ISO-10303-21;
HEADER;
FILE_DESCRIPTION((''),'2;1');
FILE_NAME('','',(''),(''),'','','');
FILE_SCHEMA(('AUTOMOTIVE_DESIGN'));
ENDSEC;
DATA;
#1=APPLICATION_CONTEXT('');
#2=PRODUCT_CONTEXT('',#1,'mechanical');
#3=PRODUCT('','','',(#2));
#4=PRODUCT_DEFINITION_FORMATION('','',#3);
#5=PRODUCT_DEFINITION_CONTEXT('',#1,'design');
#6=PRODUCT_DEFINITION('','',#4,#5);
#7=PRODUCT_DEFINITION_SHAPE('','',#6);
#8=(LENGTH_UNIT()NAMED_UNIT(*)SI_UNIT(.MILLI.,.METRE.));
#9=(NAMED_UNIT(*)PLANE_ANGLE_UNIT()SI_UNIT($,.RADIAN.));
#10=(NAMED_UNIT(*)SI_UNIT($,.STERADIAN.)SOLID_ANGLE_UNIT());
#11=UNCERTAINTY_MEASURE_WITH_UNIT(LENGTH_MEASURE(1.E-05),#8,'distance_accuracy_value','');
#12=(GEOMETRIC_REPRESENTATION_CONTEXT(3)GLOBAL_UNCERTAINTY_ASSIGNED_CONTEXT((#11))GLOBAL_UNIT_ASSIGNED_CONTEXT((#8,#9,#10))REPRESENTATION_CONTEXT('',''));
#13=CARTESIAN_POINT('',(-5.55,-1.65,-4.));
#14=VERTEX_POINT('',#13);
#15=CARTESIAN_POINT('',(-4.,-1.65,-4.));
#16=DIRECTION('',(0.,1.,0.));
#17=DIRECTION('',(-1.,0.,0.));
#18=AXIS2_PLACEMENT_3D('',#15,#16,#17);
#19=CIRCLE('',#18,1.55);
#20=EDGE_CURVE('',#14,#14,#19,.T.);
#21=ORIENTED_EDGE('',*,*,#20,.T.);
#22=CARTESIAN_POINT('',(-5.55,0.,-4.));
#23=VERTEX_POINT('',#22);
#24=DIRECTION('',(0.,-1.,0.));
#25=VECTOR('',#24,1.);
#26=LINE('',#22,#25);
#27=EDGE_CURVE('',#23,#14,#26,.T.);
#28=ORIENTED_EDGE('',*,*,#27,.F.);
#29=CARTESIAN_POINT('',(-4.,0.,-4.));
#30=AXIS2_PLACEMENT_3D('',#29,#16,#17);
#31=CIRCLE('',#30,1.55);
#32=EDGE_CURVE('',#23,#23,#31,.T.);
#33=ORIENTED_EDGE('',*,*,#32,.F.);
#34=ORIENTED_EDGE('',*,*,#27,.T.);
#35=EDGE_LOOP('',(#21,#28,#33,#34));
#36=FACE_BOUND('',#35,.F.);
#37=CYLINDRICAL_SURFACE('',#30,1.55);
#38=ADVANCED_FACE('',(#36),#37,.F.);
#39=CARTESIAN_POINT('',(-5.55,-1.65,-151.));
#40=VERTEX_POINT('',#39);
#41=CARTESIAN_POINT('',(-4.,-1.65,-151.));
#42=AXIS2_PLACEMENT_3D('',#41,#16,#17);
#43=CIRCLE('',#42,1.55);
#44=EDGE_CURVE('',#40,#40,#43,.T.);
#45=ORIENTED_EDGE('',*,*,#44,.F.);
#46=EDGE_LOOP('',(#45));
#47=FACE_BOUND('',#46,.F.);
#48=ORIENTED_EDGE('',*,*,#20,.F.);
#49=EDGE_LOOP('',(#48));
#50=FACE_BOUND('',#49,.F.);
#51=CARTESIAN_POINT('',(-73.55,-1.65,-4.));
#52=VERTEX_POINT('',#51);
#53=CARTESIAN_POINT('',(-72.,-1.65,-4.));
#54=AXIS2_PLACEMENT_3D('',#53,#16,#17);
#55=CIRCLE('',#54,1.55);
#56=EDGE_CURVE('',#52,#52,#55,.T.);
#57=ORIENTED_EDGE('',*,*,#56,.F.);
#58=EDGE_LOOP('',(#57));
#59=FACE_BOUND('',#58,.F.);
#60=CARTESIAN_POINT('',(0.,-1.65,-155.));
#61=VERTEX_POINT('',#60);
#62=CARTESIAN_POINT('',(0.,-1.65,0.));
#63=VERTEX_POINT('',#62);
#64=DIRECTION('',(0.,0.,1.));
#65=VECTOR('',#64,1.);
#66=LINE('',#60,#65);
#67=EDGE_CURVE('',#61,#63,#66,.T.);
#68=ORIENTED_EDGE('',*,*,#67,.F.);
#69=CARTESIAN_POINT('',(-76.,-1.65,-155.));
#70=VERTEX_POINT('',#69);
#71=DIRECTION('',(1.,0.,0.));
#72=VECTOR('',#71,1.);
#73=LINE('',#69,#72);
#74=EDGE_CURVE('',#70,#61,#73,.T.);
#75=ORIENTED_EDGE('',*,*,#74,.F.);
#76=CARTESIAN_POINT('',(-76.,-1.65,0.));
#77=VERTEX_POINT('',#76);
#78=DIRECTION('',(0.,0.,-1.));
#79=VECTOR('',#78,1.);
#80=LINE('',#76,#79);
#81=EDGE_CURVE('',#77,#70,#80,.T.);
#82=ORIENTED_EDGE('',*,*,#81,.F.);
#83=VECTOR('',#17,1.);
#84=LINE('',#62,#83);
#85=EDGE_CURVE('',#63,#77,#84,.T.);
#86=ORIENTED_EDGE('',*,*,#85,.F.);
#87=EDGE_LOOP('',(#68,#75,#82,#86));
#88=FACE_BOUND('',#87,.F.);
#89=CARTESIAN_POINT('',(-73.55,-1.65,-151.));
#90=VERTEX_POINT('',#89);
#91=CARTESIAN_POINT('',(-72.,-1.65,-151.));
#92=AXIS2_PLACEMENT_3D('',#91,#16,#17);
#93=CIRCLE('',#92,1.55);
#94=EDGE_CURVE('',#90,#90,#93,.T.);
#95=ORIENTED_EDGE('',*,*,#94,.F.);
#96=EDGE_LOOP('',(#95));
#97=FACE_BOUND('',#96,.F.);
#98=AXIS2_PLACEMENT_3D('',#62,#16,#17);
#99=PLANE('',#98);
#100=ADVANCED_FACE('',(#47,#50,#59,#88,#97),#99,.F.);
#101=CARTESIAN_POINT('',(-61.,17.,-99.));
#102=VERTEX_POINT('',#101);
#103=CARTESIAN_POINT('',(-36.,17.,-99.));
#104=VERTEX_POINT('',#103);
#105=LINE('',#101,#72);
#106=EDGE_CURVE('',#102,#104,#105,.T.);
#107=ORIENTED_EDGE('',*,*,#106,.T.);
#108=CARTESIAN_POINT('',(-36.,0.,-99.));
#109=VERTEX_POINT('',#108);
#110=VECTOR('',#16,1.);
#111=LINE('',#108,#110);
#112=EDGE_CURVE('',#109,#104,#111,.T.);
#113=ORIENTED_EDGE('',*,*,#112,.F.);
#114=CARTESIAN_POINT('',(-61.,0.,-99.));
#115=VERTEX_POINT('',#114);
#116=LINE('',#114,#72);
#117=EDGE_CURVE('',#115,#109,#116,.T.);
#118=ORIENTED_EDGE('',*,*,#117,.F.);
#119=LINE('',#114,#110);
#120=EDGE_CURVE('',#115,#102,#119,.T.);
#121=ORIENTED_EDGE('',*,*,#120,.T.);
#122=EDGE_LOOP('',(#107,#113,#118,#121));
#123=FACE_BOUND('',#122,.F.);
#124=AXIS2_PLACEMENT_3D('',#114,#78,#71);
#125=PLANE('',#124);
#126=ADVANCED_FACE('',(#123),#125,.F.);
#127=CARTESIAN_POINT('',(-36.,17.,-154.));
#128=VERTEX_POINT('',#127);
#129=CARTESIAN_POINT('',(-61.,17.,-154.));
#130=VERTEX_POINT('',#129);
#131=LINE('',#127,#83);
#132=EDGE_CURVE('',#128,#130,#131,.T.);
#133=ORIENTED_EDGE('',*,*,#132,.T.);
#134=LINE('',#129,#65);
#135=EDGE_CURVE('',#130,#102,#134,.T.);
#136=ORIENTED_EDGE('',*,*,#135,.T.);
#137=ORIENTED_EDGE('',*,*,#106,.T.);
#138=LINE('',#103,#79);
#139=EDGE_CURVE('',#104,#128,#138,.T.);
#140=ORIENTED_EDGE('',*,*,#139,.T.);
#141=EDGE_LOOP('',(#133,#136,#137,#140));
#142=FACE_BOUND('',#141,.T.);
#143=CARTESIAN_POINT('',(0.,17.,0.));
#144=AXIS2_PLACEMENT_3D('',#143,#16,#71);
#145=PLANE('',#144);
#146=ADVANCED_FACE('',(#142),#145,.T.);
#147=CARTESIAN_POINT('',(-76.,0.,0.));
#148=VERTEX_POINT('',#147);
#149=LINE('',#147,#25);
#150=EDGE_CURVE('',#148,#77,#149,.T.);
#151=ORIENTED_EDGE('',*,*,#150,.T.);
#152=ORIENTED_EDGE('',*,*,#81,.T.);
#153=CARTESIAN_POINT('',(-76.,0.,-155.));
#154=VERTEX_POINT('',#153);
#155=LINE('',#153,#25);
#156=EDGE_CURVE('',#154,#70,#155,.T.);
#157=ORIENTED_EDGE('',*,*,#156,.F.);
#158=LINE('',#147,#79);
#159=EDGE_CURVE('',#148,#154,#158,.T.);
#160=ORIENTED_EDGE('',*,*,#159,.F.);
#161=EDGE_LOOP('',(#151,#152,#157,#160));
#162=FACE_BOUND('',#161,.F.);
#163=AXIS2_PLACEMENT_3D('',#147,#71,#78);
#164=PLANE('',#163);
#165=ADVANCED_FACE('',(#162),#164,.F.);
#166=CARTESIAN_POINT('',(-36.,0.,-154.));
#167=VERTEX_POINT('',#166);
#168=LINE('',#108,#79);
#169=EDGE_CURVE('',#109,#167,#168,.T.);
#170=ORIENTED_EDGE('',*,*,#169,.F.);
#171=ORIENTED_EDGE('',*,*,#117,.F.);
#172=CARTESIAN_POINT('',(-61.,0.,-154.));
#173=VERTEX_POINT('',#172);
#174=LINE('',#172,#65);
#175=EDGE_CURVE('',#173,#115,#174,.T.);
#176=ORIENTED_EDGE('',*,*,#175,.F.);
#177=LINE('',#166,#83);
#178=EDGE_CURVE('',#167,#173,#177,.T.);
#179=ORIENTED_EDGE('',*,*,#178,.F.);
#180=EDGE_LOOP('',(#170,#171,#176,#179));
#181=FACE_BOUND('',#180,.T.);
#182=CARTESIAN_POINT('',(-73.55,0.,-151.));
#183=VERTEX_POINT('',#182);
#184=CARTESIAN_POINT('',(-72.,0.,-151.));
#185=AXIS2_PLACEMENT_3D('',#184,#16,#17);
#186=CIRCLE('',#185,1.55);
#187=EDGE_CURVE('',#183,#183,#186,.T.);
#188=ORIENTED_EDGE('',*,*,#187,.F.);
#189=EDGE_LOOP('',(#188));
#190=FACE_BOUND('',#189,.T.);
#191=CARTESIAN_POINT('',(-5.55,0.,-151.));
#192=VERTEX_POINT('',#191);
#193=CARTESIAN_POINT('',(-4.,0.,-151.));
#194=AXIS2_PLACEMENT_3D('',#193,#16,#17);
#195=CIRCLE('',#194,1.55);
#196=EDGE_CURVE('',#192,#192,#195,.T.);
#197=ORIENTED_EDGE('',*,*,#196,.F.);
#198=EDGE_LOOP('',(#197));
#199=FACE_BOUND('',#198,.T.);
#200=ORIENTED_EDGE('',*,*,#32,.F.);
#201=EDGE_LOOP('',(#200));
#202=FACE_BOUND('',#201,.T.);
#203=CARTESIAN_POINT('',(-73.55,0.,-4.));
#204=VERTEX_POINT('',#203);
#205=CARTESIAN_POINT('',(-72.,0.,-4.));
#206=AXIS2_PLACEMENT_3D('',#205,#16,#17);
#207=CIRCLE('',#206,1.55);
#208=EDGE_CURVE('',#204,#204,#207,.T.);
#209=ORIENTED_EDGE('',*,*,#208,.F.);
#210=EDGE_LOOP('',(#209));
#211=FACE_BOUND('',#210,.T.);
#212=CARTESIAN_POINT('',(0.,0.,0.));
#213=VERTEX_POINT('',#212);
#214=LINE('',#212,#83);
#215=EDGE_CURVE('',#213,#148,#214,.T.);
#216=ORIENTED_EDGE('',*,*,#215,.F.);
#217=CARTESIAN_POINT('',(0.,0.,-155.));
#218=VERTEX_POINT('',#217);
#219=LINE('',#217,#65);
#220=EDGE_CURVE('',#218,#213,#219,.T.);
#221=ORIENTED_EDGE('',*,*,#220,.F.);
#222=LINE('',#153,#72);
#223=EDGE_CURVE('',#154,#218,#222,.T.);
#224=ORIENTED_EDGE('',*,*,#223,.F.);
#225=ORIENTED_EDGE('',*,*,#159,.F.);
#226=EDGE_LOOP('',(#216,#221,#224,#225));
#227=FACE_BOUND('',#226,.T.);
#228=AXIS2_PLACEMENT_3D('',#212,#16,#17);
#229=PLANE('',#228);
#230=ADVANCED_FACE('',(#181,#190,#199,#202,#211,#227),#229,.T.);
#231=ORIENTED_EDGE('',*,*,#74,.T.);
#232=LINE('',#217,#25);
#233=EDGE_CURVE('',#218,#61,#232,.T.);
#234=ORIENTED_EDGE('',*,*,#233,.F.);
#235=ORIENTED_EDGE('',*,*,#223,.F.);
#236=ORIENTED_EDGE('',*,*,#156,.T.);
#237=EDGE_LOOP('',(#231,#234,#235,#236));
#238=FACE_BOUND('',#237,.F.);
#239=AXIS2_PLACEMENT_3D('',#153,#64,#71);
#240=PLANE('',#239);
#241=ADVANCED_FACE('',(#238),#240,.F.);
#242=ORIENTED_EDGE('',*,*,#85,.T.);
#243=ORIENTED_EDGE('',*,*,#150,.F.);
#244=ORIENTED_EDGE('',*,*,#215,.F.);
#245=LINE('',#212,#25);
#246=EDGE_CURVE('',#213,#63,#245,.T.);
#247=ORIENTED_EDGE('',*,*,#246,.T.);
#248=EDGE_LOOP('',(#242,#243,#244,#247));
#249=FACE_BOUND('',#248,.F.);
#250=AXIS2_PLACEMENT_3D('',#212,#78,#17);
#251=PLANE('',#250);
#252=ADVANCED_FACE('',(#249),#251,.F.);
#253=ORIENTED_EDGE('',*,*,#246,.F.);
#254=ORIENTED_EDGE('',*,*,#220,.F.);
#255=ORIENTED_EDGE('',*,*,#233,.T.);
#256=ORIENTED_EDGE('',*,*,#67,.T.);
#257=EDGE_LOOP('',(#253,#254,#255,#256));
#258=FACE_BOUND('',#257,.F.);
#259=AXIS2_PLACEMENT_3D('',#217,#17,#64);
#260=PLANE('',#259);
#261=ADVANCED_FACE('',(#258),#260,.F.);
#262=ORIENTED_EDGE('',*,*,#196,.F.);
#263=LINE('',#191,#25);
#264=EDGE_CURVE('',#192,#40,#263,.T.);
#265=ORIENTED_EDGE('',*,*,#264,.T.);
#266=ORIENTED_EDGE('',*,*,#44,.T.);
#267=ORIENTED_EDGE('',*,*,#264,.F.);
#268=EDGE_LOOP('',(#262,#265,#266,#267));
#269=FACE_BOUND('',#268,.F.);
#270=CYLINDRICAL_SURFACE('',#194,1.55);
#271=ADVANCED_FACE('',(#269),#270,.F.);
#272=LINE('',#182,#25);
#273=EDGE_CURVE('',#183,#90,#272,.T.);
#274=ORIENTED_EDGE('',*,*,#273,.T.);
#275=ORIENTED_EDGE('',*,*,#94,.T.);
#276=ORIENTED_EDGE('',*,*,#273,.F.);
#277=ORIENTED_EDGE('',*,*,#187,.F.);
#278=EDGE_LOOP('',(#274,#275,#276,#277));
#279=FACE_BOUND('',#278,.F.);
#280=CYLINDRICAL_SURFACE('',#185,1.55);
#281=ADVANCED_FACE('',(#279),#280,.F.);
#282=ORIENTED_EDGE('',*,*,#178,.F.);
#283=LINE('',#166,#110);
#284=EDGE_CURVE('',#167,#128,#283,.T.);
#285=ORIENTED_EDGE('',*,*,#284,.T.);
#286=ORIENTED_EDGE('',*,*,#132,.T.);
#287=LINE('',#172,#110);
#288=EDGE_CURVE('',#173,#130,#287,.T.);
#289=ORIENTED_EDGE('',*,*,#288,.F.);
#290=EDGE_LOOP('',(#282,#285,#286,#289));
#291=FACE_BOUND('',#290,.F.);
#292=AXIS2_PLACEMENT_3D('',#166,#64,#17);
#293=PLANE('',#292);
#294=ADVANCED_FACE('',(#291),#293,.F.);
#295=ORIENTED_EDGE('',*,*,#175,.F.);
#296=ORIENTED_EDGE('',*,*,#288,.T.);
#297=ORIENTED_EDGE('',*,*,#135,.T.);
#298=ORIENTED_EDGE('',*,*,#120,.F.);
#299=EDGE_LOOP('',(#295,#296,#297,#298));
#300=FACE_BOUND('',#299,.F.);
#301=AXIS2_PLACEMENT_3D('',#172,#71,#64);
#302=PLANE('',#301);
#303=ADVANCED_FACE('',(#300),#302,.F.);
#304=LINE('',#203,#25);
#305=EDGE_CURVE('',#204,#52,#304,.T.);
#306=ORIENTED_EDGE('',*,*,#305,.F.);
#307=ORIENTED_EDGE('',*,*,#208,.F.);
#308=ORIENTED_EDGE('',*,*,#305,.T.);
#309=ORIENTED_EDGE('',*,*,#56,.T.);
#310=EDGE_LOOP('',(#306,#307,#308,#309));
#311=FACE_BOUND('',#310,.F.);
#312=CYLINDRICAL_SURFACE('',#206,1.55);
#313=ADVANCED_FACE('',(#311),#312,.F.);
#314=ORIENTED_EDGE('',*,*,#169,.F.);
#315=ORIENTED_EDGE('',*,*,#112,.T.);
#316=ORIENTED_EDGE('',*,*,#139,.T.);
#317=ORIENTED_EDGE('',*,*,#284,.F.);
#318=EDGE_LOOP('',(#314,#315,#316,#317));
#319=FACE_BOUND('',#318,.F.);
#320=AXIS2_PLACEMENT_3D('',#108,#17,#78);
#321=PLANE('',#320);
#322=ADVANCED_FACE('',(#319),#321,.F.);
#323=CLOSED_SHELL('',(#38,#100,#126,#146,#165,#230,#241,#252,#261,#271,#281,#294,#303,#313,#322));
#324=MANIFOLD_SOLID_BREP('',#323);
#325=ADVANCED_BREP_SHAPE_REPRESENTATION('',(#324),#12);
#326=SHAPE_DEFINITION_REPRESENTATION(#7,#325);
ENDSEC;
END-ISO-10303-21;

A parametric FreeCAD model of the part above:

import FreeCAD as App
import Part
import Sketcher

V = App.Vector
Q = App.Units.Quantity


def add_polygon(sketch, points):
    """Adds a closed chain of lines whose ends are joined by coincident constraints."""
    first, n = sketch.GeometryCount, len(points)
    for a, b in zip(points, points[1:] + points[:1]):
        sketch.addGeometry(Part.LineSegment(App.Vector(*a, 0), App.Vector(*b, 0)), False)
    for i in range(n):
        sketch.addConstraint(Sketcher.Constraint("Coincident", first + i, 2, first + (i + 1) % n, 1))

doc = App.newDocument("Part")
body = doc.addObject("PartDesign::Body", "Body")

# Sketch on XZ plane
sketch1 = doc.addObject("Sketcher::SketchObject", "Sketch")
body.addObject(sketch1)
sketch1.AttachmentSupport = (doc.XZ_Plane, [""])
sketch1.MapMode = "FlatFace"
add_polygon(sketch1, [(-76, 0), (0, 0), (0, -155), (-76, -155)])  # lines 0-3
sketch1.addGeometry(Part.Circle(V(-4, -151, 0), V(0, 0, 1), 1.6), False)  # 4
sketch1.addGeometry(Part.Circle(V(-72, -151, 0), V(0, 0, 1), 1.6), False)  # 5
sketch1.addGeometry(Part.Circle(V(-4, -4, 0), V(0, 0, 1), 1.6), False)  # 6
sketch1.addGeometry(Part.Circle(V(-72, -4, 0), V(0, 0, 1), 1.6), False)  # 7
sketch1.addConstraint(Sketcher.Constraint("Horizontal", 0))
sketch1.addConstraint(Sketcher.Constraint("Vertical", 1))
sketch1.addConstraint(Sketcher.Constraint("Horizontal", 2))
sketch1.addConstraint(Sketcher.Constraint("Vertical", 3))
sketch1.addConstraint(Sketcher.Constraint("Coincident", 0, 2, -1, 1))
sketch1.addConstraint(Sketcher.Constraint("Equal", 4, 5))
sketch1.addConstraint(Sketcher.Constraint("Equal", 5, 6))
sketch1.addConstraint(Sketcher.Constraint("Equal", 6, 7))
sketch1.addConstraint(Sketcher.Constraint("Horizontal", 4, 3, 5, 3))
sketch1.addConstraint(Sketcher.Constraint("Horizontal", 6, 3, 7, 3))
sketch1.addConstraint(Sketcher.Constraint("Vertical", 4, 3, 6, 3))
sketch1.addConstraint(Sketcher.Constraint("Vertical", 5, 3, 7, 3))
sketch1.addConstraint(Sketcher.Constraint("Diameter", 4, Q("3.1 mm")))
sketch1.addConstraint(Sketcher.Constraint("DistanceX", 0, 1, 0, 2, Q("76 mm")))
sketch1.addConstraint(Sketcher.Constraint("DistanceY", 1, 2, 1, 1, Q("155 mm")))
sketch1.addConstraint(Sketcher.Constraint("DistanceX", 5, 3, 4, 3, Q("68 mm")))
sketch1.addConstraint(Sketcher.Constraint("DistanceY", 4, 3, 6, 3, Q("147 mm")))
sketch1.addConstraint(Sketcher.Constraint("DistanceX", 4, 3, -1, 1, Q("4 mm")))
sketch1.addConstraint(Sketcher.Constraint("DistanceY", 4, 3, -1, 1, Q("151 mm")))
pad1 = doc.addObject("PartDesign::Pad", "Pad")
body.addObject(pad1)
pad1.Profile = sketch1
pad1.Length = 1.65

# Sketch on XZ plane
sketch2 = doc.addObject("Sketcher::SketchObject", "Sketch001")
body.addObject(sketch2)
sketch2.AttachmentSupport = (doc.XZ_Plane, [""])
sketch2.MapMode = "FlatFace"
add_polygon(sketch2, [(-61, -154), (-61, -99), (-36, -99), (-36, -154)])  # lines 0-3
sketch2.addConstraint(Sketcher.Constraint("Vertical", 0))
sketch2.addConstraint(Sketcher.Constraint("Horizontal", 1))
sketch2.addConstraint(Sketcher.Constraint("Vertical", 2))
sketch2.addConstraint(Sketcher.Constraint("Horizontal", 3))
sketch2.addConstraint(Sketcher.Constraint("DistanceX", 1, 1, 1, 2, Q("25 mm")))
sketch2.addConstraint(Sketcher.Constraint("DistanceY", 0, 1, 0, 2, Q("55 mm")))
sketch2.addConstraint(Sketcher.Constraint("DistanceX", 0, 2, -1, 1, Q("61 mm")))
sketch2.addConstraint(Sketcher.Constraint("DistanceY", 0, 2, -1, 1, Q("99 mm")))
pad2 = doc.addObject("PartDesign::Pad", "Pad001")
body.addObject(pad2)
pad2.Profile = sketch2
pad2.Length = 17
pad2.Reversed = True

doc.recompute()
